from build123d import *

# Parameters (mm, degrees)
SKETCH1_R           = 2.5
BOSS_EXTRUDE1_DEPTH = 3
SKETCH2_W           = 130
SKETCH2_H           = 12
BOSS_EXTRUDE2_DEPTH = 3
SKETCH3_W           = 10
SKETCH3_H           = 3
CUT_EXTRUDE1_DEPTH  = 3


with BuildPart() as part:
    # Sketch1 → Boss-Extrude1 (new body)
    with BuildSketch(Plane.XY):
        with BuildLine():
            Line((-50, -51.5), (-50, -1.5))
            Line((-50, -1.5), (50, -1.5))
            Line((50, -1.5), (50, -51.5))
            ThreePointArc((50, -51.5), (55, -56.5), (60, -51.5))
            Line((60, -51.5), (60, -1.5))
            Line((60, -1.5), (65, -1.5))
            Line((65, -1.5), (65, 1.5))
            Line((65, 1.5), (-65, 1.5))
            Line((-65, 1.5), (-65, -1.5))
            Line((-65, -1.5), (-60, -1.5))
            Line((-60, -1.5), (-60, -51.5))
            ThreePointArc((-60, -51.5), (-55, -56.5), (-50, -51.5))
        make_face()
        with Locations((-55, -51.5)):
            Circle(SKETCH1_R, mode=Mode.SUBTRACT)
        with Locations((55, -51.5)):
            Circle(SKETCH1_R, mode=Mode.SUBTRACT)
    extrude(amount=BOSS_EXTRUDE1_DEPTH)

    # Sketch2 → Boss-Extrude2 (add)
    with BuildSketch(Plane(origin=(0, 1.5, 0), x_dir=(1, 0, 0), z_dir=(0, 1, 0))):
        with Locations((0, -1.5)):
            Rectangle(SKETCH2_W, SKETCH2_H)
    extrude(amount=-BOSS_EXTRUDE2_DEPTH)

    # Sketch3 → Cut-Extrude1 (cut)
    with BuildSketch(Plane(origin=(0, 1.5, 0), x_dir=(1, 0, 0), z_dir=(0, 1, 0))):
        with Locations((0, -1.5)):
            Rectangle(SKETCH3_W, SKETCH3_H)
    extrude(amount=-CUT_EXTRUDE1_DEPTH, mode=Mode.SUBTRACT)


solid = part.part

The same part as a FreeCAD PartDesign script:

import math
import FreeCAD as App
import Part
import Sketcher
from FreeCAD import Vector
Q = App.Units.Quantity


def add_polygon(sketch, points):
    """Adds a closed chain of lines whose ends are joined by coincident constraints."""
    first, n = sketch.GeometryCount, len(points)
    for a, b in zip(points, points[1:] + points[:1]):
        sketch.addGeometry(Part.LineSegment(App.Vector(*a, 0), App.Vector(*b, 0)), False)
    for i in range(n):
        sketch.addConstraint(Sketcher.Constraint("Coincident", first + i, 2, first + (i + 1) % n, 1))

doc = App.newDocument("Part")
body = doc.addObject("PartDesign::Body", "Body")

# Sketch on XY plane
sketch1 = body.newObject("Sketcher::SketchObject", "Sketch")
sketch1.AttachmentSupport = (doc.getObject("XY_Plane"), [""])
sketch1.MapMode = "FlatFace"
sketch1.addGeometry([
    Part.LineSegment(Vector(-50, -51.5, 0), Vector(-50, -1.5, 0)),  # 0
    Part.LineSegment(Vector(-50, -1.5, 0), Vector(50, -1.5, 0)),  # 1
    Part.LineSegment(Vector(50, -1.5, 0), Vector(50, -51.5, 0)),  # 2
    Part.ArcOfCircle(Part.Circle(Vector(55, -51.5, 0), Vector(0, 0, 1), 5), math.radians(180), math.radians(360)),  # 3
    Part.LineSegment(Vector(60, -51.5, 0), Vector(60, -1.5, 0)),  # 4
    Part.LineSegment(Vector(60, -1.5, 0), Vector(65, -1.5, 0)),  # 5
    Part.LineSegment(Vector(65, -1.5, 0), Vector(65, 1.5, 0)),  # 6
    Part.LineSegment(Vector(65, 1.5, 0), Vector(-65, 1.5, 0)),  # 7
    Part.LineSegment(Vector(-65, 1.5, 0), Vector(-65, -1.5, 0)),  # 8
    Part.LineSegment(Vector(-65, -1.5, 0), Vector(-60, -1.5, 0)),  # 9
    Part.LineSegment(Vector(-60, -1.5, 0), Vector(-60, -51.5, 0)),  # 10
    Part.ArcOfCircle(Part.Circle(Vector(-55, -51.5, 0), Vector(0, 0, 1), 5), math.radians(180), math.radians(360)),  # 11
    Part.Circle(Vector(-55, -51.5, 0), Vector(0, 0, 1), 2.5),  # 12
    Part.Circle(Vector(55, -51.5, 0), Vector(0, 0, 1), 2.5),  # 13
], False)
sketch1.addConstraint([
    Sketcher.Constraint("Coincident", 0, 2, 1, 1),
    Sketcher.Constraint("Coincident", 1, 2, 2, 1),
    Sketcher.Constraint("Tangent", 2, 2, 3, 1),
    Sketcher.Constraint("Tangent", 3, 2, 4, 1),
    Sketcher.Constraint("Coincident", 4, 2, 5, 1),
    Sketcher.Constraint("Coincident", 5, 2, 6, 1),
    Sketcher.Constraint("Coincident", 6, 2, 7, 1),
    Sketcher.Constraint("Coincident", 7, 2, 8, 1),
    Sketcher.Constraint("Coincident", 8, 2, 9, 1),
    Sketcher.Constraint("Coincident", 9, 2, 10, 1),
    Sketcher.Constraint("Tangent", 10, 2, 11, 1),
    Sketcher.Constraint("Tangent", 11, 2, 0, 1),
    Sketcher.Constraint("Vertical", 0),
    Sketcher.Constraint("Horizontal", 1),
    Sketcher.Constraint("Vertical", 2),
    Sketcher.Constraint("Vertical", 4),
    Sketcher.Constraint("Horizontal", 5),
    Sketcher.Constraint("Vertical", 6),
    Sketcher.Constraint("Horizontal", 7),
    Sketcher.Constraint("Vertical", 8),
    Sketcher.Constraint("Horizontal", 9),
    Sketcher.Constraint("Vertical", 10),
    Sketcher.Constraint("Coincident", 12, 3, 11, 3),
    Sketcher.Constraint("Coincident", 13, 3, 3, 3),
    Sketcher.Constraint("Equal", 3, 11),
    Sketcher.Constraint("Equal", 12, 13),
    Sketcher.Constraint("Symmetric", 5, 2, 7, 2, -1, 1),
    Sketcher.Constraint("Symmetric", 3, 3, 11, 3, -2),
    Sketcher.Constraint("Horizontal", 1, 2, 4, 2),
    Sketcher.Constraint("Horizontal", 5, 2, 8, 2),
    Sketcher.Constraint("Diameter", 12, Q("5 mm")),
    Sketcher.Constraint("Radius", 3, Q("5 mm")),
    Sketcher.Constraint("DistanceX", 1, 1, 1, 2, Q("100 mm")),
    Sketcher.Constraint("DistanceX", 5, 1, 5, 2, Q("5 mm")),
    Sketcher.Constraint("DistanceY", 0, 1, 0, 2, Q("50 mm")),
    Sketcher.Constraint("DistanceY", 6, 1, 6, 2, Q("3 mm")),
])
pad1 = body.newObject("PartDesign::Pad", "Pad")
pad1.Profile = sketch1
pad1.Length = 3

# Sketch on XZ plane
sketch2 = body.newObject("Sketcher::SketchObject", "Sketch001")
sketch2.AttachmentSupport = (doc.getObject("XZ_Plane"), [""])
sketch2.MapMode = "FlatFace"
sketch2.AttachmentOffset = App.Placement(Vector(0, 0, -1.5), App.Rotation())
add_polygon(sketch2, [(-65, -4.5), (-65, 7.5), (65, 7.5), (65, -4.5)])  # lines 0-3
sketch2.addConstraint([
    Sketcher.Constraint("Vertical", 0),
    Sketcher.Constraint("Horizontal", 1),
    Sketcher.Constraint("Vertical", 2),
    Sketcher.Constraint("Horizontal", 3),
    Sketcher.Constraint("DistanceX", 1, 1, 1, 2, Q("130 mm")),
    Sketcher.Constraint("DistanceY", 0, 1, 0, 2, Q("12 mm")),
    Sketcher.Constraint("DistanceX", 0, 2, -1, 1, Q("65 mm")),
    Sketcher.Constraint("DistanceY", -1, 1, 0, 2, Q("7.5 mm")),
])
pad2 = body.newObject("PartDesign::Pad", "Pad001")
pad2.Profile = sketch2
pad2.Length = 3

# Sketch on XZ plane
sketch3 = body.newObject("Sketcher::SketchObject", "Sketch002")
sketch3.AttachmentSupport = (doc.getObject("XZ_Plane"), [""])
sketch3.MapMode = "FlatFace"
sketch3.AttachmentOffset = App.Placement(Vector(0, 0, -1.5), App.Rotation())
add_polygon(sketch3, [(-5, 0), (-5, 3), (5, 3), (5, 0)])  # lines 0-3
sketch3.addConstraint([
    Sketcher.Constraint("Vertical", 0),
    Sketcher.Constraint("Horizontal", 1),
    Sketcher.Constraint("Vertical", 2),
    Sketcher.Constraint("Horizontal", 3),
    Sketcher.Constraint("Symmetric", 2, 2, 3, 2, -1, 1),
    Sketcher.Constraint("DistanceX", 1, 1, 1, 2, Q("10 mm")),
    Sketcher.Constraint("DistanceY", 0, 1, 0, 2, Q("3 mm")),
])
pocket1 = body.newObject("PartDesign::Pocket", "Pocket")
pocket1.Profile = sketch3
pocket1.Length = 3
pocket1.Reversed = True

doc.recompute()
